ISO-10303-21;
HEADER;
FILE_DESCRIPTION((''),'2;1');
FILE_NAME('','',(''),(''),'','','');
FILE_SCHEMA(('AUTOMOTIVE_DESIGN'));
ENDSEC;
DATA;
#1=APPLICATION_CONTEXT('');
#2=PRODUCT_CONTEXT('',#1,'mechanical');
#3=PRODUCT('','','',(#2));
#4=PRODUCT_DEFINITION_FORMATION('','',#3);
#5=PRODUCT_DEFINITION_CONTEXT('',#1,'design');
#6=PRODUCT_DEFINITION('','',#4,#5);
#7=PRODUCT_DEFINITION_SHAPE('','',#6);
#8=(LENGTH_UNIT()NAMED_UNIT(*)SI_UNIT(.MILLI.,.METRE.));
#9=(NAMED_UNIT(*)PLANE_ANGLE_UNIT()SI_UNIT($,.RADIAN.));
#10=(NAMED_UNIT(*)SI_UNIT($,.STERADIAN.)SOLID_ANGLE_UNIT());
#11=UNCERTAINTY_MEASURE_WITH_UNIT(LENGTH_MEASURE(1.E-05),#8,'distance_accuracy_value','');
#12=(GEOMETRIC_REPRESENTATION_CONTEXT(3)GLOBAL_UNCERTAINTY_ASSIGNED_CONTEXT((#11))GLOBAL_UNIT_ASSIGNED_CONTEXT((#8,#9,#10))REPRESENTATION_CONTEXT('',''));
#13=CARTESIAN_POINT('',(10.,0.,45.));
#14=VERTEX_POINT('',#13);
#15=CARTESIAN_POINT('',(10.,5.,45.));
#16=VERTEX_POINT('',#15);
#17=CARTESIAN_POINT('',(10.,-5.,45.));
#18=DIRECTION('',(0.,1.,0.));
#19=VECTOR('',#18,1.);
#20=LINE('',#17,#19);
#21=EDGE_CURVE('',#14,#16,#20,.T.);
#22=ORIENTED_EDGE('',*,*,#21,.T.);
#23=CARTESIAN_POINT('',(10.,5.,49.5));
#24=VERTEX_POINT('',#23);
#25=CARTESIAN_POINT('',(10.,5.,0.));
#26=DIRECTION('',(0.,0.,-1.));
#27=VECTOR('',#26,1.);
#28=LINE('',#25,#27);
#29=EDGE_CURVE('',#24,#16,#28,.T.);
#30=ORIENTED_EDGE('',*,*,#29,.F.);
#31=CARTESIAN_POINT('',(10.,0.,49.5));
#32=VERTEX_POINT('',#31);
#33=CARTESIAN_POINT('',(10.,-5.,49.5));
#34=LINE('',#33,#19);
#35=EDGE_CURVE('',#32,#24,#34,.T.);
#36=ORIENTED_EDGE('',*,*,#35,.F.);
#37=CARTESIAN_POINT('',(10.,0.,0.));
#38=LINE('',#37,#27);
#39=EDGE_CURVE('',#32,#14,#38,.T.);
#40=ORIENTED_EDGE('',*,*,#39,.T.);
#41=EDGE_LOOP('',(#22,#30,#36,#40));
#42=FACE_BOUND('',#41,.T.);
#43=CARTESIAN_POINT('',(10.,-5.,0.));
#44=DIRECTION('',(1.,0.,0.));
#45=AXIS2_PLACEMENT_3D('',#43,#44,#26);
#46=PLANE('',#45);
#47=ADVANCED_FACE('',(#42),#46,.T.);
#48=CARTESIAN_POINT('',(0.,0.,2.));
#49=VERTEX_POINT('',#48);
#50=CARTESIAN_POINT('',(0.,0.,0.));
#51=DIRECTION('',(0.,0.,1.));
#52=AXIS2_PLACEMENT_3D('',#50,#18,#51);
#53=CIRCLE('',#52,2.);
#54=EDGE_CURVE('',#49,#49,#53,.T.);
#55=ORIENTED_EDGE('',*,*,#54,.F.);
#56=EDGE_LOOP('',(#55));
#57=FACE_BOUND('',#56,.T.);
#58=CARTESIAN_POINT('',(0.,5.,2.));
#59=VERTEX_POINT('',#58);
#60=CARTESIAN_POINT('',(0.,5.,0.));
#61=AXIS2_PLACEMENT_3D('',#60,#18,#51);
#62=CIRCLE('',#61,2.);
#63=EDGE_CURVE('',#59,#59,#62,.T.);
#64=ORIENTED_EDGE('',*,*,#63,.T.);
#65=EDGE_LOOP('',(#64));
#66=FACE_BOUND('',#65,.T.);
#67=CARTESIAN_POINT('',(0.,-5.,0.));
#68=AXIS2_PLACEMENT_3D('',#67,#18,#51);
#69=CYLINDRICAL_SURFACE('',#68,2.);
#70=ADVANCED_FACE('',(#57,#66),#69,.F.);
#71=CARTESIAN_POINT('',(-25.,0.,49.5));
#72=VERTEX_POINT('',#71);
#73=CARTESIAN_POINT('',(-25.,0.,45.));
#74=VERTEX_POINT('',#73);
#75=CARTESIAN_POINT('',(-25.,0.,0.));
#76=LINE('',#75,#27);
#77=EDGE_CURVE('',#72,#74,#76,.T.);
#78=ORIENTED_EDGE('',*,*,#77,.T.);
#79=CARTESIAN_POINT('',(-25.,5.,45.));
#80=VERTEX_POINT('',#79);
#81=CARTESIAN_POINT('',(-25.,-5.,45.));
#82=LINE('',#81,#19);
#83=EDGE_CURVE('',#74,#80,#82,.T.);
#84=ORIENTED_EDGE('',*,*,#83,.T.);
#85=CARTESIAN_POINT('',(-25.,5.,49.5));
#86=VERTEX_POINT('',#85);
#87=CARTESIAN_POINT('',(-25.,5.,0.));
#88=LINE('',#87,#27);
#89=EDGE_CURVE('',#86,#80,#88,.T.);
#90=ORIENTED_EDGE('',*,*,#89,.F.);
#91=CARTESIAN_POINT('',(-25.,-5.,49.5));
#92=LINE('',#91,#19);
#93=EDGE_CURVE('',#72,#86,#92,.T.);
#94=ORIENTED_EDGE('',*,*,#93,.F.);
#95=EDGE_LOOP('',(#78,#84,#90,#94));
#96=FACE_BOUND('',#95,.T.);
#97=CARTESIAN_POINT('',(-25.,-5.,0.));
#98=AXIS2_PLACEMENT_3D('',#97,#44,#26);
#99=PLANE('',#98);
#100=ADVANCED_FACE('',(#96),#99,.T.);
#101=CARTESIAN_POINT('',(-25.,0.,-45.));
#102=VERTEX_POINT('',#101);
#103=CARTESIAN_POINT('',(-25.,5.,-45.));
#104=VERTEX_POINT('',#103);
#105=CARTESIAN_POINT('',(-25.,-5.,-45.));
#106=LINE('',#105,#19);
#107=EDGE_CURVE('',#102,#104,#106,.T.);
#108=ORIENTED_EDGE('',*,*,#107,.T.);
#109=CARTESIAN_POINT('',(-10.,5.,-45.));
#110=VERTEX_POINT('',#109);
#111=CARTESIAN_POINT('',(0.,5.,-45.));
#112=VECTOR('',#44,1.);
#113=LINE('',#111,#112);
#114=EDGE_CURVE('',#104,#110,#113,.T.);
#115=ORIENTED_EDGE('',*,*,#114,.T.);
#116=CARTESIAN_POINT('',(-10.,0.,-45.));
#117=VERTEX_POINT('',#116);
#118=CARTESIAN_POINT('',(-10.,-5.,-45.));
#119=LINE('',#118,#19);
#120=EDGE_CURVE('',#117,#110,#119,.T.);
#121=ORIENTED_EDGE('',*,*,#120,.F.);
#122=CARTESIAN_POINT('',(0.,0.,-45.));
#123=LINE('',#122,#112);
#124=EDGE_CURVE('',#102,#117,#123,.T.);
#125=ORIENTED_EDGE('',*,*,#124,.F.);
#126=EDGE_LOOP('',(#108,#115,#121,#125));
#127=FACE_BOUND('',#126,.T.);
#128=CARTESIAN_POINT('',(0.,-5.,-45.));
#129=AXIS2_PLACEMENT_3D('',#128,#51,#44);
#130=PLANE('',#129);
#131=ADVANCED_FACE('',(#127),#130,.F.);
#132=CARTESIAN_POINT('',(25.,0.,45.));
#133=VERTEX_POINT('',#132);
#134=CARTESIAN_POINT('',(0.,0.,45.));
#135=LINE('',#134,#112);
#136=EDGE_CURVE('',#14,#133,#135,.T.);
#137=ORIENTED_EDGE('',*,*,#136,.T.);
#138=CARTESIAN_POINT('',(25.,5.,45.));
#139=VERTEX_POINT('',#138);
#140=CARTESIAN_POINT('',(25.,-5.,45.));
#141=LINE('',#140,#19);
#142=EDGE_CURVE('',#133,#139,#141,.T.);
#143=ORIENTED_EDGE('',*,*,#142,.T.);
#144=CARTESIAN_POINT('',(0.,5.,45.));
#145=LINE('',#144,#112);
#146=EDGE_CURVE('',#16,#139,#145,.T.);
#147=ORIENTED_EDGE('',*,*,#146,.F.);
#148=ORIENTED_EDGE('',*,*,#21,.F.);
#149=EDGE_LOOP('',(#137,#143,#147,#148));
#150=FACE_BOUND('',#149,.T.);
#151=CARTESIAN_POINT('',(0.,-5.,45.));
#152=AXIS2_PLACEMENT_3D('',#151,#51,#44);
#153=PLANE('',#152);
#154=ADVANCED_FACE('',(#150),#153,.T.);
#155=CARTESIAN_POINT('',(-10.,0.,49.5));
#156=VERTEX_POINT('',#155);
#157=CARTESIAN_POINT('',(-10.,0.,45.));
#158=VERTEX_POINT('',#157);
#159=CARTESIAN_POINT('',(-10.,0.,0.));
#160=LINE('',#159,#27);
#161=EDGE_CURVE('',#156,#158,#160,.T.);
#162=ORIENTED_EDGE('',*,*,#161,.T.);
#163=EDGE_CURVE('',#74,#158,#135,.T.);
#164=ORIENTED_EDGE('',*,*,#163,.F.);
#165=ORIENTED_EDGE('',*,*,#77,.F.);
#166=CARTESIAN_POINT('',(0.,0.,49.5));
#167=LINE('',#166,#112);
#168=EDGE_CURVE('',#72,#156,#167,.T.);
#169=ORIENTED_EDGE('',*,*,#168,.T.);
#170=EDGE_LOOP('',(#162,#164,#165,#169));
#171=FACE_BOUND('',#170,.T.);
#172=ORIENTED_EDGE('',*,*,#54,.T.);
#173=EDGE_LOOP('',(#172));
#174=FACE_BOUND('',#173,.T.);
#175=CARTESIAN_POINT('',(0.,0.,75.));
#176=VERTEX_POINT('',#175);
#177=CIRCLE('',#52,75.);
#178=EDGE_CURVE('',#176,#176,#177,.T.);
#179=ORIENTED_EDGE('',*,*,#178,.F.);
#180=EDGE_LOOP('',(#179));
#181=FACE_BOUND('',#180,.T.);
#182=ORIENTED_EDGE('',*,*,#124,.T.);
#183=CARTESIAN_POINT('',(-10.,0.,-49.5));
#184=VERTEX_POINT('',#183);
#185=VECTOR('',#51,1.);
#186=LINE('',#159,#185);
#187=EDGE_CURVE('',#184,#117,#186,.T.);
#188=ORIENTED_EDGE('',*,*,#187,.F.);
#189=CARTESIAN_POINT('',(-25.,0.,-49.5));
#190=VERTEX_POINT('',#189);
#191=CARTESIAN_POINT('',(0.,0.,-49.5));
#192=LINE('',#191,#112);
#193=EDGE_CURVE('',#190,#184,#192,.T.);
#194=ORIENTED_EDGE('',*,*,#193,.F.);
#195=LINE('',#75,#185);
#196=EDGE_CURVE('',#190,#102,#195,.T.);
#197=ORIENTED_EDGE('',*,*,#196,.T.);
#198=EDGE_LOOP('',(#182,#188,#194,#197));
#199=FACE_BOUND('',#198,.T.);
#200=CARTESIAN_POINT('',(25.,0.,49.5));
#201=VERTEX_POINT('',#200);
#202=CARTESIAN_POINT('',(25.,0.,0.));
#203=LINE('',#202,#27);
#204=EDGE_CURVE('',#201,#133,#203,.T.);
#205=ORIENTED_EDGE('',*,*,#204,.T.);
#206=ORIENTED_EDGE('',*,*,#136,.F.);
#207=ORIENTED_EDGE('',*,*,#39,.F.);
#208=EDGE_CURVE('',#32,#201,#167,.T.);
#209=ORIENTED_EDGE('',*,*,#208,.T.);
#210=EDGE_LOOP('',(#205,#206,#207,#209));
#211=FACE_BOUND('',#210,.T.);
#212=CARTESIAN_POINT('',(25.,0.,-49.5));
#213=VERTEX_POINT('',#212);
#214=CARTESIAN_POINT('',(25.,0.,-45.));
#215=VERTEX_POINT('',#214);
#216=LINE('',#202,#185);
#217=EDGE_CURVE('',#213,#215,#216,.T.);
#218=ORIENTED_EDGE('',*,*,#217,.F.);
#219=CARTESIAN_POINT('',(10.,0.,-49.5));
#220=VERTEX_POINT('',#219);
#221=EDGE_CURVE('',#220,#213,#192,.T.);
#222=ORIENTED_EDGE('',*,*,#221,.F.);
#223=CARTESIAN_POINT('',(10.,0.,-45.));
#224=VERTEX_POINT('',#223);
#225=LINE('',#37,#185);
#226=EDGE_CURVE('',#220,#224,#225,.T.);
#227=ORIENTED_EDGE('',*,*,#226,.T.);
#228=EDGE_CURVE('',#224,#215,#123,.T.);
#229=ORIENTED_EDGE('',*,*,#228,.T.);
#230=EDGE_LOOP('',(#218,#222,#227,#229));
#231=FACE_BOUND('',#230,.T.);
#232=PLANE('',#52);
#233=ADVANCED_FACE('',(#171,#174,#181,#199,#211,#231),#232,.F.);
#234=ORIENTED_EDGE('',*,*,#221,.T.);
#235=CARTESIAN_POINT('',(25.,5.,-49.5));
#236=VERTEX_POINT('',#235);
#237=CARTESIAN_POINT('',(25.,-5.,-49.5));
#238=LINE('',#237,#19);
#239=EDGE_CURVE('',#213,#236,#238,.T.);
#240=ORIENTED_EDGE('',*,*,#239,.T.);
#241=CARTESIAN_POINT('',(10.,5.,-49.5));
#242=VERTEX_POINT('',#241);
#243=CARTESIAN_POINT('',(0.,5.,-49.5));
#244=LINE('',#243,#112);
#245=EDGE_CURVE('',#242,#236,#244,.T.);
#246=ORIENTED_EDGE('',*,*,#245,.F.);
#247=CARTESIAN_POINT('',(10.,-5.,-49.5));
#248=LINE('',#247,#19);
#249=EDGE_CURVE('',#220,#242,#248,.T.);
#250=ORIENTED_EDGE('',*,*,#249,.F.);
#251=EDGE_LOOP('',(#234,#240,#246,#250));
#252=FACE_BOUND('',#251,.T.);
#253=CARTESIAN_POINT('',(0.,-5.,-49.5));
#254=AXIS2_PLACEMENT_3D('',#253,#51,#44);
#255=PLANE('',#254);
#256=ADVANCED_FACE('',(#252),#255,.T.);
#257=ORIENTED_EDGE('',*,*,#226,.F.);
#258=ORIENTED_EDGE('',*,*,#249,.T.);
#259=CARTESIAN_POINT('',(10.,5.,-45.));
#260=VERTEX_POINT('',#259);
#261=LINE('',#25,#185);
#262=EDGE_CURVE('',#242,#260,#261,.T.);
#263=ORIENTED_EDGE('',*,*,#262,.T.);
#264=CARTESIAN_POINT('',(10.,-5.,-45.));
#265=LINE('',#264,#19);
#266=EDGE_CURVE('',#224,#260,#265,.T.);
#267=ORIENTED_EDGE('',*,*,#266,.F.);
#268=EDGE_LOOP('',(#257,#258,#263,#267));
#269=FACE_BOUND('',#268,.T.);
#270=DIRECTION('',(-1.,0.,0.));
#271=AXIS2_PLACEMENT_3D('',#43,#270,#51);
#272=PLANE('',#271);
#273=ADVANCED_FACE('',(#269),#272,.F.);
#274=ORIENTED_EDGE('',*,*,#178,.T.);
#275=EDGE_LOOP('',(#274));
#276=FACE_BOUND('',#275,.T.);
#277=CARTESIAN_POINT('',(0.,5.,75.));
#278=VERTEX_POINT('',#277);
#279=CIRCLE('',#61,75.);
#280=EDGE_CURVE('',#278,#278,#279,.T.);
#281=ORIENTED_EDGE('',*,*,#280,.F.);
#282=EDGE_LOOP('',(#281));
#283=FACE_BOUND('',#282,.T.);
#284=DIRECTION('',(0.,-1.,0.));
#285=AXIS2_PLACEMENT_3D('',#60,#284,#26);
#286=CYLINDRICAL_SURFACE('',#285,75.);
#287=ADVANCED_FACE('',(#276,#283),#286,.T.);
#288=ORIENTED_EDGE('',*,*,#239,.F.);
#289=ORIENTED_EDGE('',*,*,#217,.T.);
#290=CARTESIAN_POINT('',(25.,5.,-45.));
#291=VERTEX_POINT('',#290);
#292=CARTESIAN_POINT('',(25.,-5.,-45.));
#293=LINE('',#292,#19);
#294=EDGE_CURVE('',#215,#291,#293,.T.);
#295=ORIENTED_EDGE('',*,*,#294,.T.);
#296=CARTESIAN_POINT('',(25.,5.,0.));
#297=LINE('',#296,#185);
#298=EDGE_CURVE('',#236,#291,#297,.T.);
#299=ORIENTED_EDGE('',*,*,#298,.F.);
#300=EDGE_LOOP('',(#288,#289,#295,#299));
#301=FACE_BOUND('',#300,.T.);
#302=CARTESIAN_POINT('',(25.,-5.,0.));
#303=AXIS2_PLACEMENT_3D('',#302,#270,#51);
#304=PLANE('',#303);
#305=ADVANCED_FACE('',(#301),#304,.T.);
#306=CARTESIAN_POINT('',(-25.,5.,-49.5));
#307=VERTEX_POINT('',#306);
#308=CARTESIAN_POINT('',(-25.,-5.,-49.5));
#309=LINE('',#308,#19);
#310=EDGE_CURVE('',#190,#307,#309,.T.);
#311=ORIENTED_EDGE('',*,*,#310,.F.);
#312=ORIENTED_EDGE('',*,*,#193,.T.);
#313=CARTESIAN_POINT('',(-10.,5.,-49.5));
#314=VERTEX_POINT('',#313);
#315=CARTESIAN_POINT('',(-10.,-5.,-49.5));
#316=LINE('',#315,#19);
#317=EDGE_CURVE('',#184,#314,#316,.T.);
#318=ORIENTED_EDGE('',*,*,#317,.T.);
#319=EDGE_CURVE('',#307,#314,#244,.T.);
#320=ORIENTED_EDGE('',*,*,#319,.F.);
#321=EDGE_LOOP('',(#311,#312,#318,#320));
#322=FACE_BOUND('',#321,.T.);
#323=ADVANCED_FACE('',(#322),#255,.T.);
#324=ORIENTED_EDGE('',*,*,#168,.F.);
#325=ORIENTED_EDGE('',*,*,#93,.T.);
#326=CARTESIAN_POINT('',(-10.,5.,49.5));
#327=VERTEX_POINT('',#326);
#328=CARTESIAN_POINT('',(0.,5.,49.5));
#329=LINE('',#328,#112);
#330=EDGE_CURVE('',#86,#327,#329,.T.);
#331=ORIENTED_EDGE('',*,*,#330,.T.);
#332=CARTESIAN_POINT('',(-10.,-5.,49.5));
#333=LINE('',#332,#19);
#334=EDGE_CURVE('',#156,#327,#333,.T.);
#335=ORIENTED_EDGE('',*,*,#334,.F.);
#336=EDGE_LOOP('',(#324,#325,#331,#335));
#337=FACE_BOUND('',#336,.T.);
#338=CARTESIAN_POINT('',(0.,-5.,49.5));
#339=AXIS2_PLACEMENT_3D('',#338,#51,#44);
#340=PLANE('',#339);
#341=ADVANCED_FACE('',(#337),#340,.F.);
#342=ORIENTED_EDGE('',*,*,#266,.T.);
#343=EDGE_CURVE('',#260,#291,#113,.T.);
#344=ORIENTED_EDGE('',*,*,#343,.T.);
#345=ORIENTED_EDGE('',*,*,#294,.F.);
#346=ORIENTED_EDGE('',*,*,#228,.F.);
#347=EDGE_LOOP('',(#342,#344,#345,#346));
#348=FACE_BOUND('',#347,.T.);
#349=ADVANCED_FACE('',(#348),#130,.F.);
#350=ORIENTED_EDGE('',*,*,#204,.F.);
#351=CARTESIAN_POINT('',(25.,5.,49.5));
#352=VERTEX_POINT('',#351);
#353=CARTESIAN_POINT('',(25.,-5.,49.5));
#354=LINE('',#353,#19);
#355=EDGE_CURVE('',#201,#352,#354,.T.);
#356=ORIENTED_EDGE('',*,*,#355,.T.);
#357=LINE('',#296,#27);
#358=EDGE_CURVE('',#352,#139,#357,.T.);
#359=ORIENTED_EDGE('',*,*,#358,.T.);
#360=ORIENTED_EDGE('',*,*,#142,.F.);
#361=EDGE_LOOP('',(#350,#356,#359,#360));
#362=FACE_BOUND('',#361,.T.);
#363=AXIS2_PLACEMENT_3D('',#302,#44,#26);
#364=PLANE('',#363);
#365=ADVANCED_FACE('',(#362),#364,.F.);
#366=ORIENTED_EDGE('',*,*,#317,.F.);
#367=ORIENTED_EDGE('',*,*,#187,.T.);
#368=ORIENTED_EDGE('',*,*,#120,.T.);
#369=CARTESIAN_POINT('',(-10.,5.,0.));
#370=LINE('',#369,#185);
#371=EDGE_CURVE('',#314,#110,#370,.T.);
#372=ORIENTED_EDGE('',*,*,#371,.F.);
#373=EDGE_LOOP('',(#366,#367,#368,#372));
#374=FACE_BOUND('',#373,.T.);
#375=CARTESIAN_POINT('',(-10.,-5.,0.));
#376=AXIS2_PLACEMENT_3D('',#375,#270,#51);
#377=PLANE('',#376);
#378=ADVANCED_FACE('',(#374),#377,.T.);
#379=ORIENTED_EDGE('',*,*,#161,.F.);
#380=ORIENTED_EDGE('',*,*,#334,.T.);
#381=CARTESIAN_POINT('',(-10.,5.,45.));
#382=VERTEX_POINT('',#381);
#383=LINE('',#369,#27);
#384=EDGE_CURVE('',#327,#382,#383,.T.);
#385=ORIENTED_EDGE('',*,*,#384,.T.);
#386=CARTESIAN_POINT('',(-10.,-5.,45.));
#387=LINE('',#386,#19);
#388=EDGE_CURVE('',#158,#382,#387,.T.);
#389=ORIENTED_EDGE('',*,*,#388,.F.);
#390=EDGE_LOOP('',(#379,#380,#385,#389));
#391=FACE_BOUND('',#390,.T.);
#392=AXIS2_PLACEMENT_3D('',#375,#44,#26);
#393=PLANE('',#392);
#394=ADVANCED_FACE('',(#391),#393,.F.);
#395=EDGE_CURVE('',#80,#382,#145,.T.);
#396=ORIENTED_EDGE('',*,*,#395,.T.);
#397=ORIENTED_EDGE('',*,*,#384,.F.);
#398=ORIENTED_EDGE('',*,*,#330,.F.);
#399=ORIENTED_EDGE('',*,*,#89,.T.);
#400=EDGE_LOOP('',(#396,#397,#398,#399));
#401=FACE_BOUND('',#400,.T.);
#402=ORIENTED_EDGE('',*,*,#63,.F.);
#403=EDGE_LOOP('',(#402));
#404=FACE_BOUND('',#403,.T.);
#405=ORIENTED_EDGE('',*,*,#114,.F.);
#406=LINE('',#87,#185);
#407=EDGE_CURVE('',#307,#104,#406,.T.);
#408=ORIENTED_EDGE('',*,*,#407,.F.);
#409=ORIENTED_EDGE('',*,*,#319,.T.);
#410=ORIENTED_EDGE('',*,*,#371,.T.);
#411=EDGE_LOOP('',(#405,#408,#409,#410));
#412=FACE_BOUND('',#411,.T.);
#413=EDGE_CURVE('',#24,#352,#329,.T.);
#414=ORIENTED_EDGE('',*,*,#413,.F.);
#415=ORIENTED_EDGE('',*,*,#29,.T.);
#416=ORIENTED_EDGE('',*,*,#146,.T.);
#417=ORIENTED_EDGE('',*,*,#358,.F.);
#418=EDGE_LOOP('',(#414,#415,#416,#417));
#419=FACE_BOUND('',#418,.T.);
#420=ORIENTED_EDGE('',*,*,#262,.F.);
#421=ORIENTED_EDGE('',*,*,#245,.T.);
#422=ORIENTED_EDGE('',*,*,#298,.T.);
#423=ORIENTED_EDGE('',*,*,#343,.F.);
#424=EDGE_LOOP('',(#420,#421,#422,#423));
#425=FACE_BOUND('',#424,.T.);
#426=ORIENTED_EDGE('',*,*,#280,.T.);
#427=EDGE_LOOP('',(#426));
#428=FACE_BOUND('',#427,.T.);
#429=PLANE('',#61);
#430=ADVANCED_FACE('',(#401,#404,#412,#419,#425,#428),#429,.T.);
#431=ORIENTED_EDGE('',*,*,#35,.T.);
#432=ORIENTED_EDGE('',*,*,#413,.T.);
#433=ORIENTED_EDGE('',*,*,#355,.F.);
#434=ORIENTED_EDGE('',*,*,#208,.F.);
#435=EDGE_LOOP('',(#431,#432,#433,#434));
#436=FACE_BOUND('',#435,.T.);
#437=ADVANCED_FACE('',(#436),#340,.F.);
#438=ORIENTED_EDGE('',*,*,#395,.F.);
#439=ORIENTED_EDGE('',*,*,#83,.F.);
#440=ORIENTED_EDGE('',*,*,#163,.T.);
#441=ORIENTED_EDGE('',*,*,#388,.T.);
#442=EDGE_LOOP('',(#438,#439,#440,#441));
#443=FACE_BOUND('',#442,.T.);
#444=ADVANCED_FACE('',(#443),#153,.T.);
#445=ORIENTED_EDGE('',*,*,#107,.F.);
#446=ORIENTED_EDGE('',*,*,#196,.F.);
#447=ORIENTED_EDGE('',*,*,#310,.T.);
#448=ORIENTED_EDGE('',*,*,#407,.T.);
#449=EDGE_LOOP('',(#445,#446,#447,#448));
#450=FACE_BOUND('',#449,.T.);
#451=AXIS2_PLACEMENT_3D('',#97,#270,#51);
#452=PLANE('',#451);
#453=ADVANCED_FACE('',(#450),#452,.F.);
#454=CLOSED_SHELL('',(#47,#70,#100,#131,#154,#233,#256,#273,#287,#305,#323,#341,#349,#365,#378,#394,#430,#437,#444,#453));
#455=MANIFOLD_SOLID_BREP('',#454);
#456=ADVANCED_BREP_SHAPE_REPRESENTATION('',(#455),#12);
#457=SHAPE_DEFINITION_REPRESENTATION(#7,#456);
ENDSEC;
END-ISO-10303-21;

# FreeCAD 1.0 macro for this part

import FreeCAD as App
import Part
import Sketcher
from FreeCAD import Vector
Q = App.Units.Quantity

doc = App.newDocument("Part")
body = doc.addObject("PartDesign::Body", "Body")

sketch1 = body.newObject("Sketcher::SketchObject", "Sketch")
sketch1.AttachmentSupport = (doc.getObject("XZ_Plane"), [""])
sketch1.MapMode = "FlatFace"
sketch1.addGeometry(Part.Circle(Vector(0, 0, 0), Vector(0, 0, 1), 75), False)
sketch1.addConstraint([
    Sketcher.Constraint("Coincident", 0, 3, -1, 1),
    Sketcher.Constraint("Diameter", 0, Q("150 mm")),
])
pad1 = body.newObject("PartDesign::Pad", "Pad")
pad1.Profile = sketch1
pad1.Length = 5
pad1.Reversed = True

sketch2 = body.newObject("Sketcher::SketchObject", "Sketch001")
sketch2.AttachmentSupport = (doc.getObject("XZ_Plane"), [""])
sketch2.MapMode = "FlatFace"
sketch2.AttachmentOffset = App.Placement(Vector(0, 0, -5), App.Rotation())
sketch2.addGeometry([
    Part.LineSegment(Vector(-25, -49.5, 0), Vector(-25, -45, 0)),
    Part.LineSegment(Vector(-25, -45, 0), Vector(-10, -45, 0)),
    Part.LineSegment(Vector(-10, -45, 0), Vector(-10, -49.5, 0)),
    Part.LineSegment(Vector(-10, -49.5, 0), Vector(-25, -49.5, 0)),
    Part.LineSegment(Vector(10, -49.5, 0), Vector(10, -45, 0)),
    Part.LineSegment(Vector(10, -45, 0), Vector(25, -45, 0)),
    Part.LineSegment(Vector(25, -45, 0), Vector(25, -49.5, 0)),
    Part.LineSegment(Vector(25, -49.5, 0), Vector(10, -49.5, 0)),
], False)
sketch2.addConstraint([
    Sketcher.Constraint("Coincident", 0, 2, 1, 1),
    Sketcher.Constraint("Coincident", 1, 2, 2, 1),
    Sketcher.Constraint("Coincident", 2, 2, 3, 1),
    Sketcher.Constraint("Coincident", 3, 2, 0, 1),
    Sketcher.Constraint("Coincident", 4, 2, 5, 1),
    Sketcher.Constraint("Coincident", 5, 2, 6, 1),
    Sketcher.Constraint("Coincident", 6, 2, 7, 1),
    Sketcher.Constraint("Coincident", 7, 2, 4, 1),
    Sketcher.Constraint("Vertical", 0),
    Sketcher.Constraint("Horizontal", 1),
    Sketcher.Constraint("Vertical", 2),
    Sketcher.Constraint("Horizontal", 3),
    Sketcher.Constraint("Vertical", 4),
    Sketcher.Constraint("Horizontal", 5),
    Sketcher.Constraint("Vertical", 6),
    Sketcher.Constraint("Horizontal", 7),
    Sketcher.Constraint("Symmetric", 1, 2, 4, 2, -2),
    Sketcher.Constraint("Symmetric", 3, 2, 6, 2, -2),
    Sketcher.Constraint("DistanceX", 1, 1, 1, 2, Q("15 mm")),
    Sketcher.Constraint("DistanceY", 0, 1, 0, 2, Q("4.5 mm")),
    Sketcher.Constraint("DistanceX", 0, 2, -1, 1, Q("25 mm")),
    Sketcher.Constraint("DistanceY", 0, 2, -1, 1, Q("45 mm")),
])
pocket1 = body.newObject("PartDesign::Pocket", "Pocket")
pocket1.Profile = sketch2
pocket1.Length = 10
pocket1.Reversed = True
doc.recompute()

mirrored = body.newObject("PartDesign::Mirrored", "Mirrored")
mirrored.Originals = [pocket1]
mirrored.MirrorPlane = (doc.getObject("XY_Plane"), [""])
body.Tip = mirrored

sketch3 = body.newObject("Sketcher::SketchObject", "Sketch002")
sketch3.AttachmentSupport = (doc.getObject("XZ_Plane"), [""])
sketch3.MapMode = "FlatFace"
sketch3.AttachmentOffset = App.Placement(Vector(0, 0, -5), App.Rotation())
sketch3.addGeometry(Part.Circle(Vector(0, 0, 0), Vector(0, 0, 1), 2), False)
sketch3.addConstraint([
    Sketcher.Constraint("Coincident", 0, 3, -1, 1),
    Sketcher.Constraint("Diameter", 0, Q("4 mm")),
])
pocket2 = body.newObject("PartDesign::Pocket", "Pocket001")
pocket2.Profile = sketch3
pocket2.Length = 10
pocket2.Reversed = True

doc.recompute()
